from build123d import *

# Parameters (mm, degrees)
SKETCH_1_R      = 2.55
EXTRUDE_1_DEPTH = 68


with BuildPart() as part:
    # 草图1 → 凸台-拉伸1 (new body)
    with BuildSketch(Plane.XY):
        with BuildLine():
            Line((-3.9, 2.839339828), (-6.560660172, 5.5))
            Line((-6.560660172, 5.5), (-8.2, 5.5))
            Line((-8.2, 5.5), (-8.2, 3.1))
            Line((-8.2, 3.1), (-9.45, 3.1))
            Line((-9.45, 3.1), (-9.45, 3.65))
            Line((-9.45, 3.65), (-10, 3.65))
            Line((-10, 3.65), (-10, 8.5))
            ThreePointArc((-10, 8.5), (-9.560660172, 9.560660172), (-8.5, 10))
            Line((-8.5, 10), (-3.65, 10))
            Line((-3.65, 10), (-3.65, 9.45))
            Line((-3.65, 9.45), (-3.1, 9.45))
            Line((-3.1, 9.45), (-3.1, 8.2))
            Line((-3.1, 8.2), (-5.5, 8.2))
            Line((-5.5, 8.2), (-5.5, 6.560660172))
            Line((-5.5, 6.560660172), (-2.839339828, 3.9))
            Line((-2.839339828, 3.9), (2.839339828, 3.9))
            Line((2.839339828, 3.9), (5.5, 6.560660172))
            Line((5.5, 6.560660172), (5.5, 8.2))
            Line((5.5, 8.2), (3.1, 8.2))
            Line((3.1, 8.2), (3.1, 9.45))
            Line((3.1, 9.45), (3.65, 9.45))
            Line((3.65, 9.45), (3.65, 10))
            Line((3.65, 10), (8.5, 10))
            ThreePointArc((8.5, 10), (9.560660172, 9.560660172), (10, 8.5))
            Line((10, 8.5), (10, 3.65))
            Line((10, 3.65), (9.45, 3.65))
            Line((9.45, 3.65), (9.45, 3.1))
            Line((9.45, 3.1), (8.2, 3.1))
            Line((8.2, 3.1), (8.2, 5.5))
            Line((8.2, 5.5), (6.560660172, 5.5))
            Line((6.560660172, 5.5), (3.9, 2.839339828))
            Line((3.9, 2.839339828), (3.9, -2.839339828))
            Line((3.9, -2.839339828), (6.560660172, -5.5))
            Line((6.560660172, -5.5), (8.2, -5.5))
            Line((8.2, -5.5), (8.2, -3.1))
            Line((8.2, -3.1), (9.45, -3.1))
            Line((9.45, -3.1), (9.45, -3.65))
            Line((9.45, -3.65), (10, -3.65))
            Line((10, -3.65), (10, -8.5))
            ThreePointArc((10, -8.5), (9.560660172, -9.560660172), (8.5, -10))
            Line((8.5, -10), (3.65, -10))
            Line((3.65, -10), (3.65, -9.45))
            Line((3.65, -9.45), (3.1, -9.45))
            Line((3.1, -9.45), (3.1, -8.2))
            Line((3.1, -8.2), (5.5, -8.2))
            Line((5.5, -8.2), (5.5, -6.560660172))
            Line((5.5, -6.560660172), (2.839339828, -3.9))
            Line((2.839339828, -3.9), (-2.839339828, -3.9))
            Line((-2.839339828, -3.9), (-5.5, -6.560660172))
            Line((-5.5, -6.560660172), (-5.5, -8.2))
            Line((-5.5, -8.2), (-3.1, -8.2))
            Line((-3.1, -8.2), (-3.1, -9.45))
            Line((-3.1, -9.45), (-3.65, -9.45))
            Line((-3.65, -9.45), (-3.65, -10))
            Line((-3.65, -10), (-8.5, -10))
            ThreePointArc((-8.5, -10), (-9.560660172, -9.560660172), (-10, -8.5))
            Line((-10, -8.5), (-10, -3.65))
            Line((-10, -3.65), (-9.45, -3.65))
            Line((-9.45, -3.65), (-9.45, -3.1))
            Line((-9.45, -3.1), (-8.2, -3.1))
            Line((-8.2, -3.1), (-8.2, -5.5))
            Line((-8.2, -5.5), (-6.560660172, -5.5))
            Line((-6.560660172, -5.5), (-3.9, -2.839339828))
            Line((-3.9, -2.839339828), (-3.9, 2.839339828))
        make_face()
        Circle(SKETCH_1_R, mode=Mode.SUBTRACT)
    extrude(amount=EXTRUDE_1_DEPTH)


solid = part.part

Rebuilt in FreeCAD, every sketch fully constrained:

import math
import FreeCAD as App
import Part
import Sketcher

V = App.Vector

doc = App.newDocument("Part")
params = doc.addObject("Spreadsheet::Sheet", "Params")
for row, (alias, value) in enumerate([
    ("sketch1_diameter", "5.1 mm"),
    ("sketch1_radius", "1.5 mm"),
    ("sketch1_width", "2.4 mm"),
    ("sketch1_width2", "1.25 mm"),
    ("sketch1_width3", "0.55 mm"),
    ("pad1_length", "68 mm"),
], start=1):
    params.set(f"A{row}", alias)
    params.set(f"B{row}", "=" + value)
    params.setAlias(f"B{row}", alias)

body = doc.addObject("PartDesign::Body", "Body")

sketch1 = body.newObject("Sketcher::SketchObject", "Sketch")
sketch1.AttachmentSupport = (doc.getObject("XY_Plane"), [""])
sketch1.MapMode = "FlatFace"
sketch1.addGeometry([
    Part.LineSegment(V(-6.56066, 5.5, 0), V(-3.9, 2.83934, 0)),
    Part.LineSegment(V(-3.9, 2.83934, 0), V(-3.9, -2.83934, 0)),
    Part.LineSegment(V(-3.9, -2.83934, 0), V(-6.56066, -5.5, 0)),
    Part.LineSegment(V(-6.56066, -5.5, 0), V(-8.2, -5.5, 0)),
    Part.LineSegment(V(-8.2, -5.5, 0), V(-8.2, -3.1, 0)),
    Part.LineSegment(V(-8.2, -3.1, 0), V(-9.45, -3.1, 0)),
    Part.LineSegment(V(-9.45, -3.1, 0), V(-9.45, -3.65, 0)),
    Part.LineSegment(V(-9.45, -3.65, 0), V(-10, -3.65, 0)),
    Part.LineSegment(V(-10, -3.65, 0), V(-10, -8.5, 0)),
    Part.ArcOfCircle(Part.Circle(V(-8.5, -8.5, 0), V(0, 0, 1), 1.5), math.radians(180), math.radians(270)),
    Part.LineSegment(V(-8.5, -10, 0), V(-3.65, -10, 0)),
    Part.LineSegment(V(-3.65, -10, 0), V(-3.65, -9.45, 0)),
    Part.LineSegment(V(-3.65, -9.45, 0), V(-3.1, -9.45, 0)),
    Part.LineSegment(V(-3.1, -9.45, 0), V(-3.1, -8.2, 0)),
    Part.LineSegment(V(-3.1, -8.2, 0), V(-5.5, -8.2, 0)),
    Part.LineSegment(V(-5.5, -8.2, 0), V(-5.5, -6.56066, 0)),
    Part.LineSegment(V(-5.5, -6.56066, 0), V(-2.83934, -3.9, 0)),
    Part.LineSegment(V(-2.83934, -3.9, 0), V(2.83934, -3.9, 0)),
    Part.LineSegment(V(2.83934, -3.9, 0), V(5.5, -6.56066, 0)),
    Part.LineSegment(V(5.5, -6.56066, 0), V(5.5, -8.2, 0)),
    Part.LineSegment(V(5.5, -8.2, 0), V(3.1, -8.2, 0)),
    Part.LineSegment(V(3.1, -8.2, 0), V(3.1, -9.45, 0)),
    Part.LineSegment(V(3.1, -9.45, 0), V(3.65, -9.45, 0)),
    Part.LineSegment(V(3.65, -9.45, 0), V(3.65, -10, 0)),
    Part.LineSegment(V(3.65, -10, 0), V(8.5, -10, 0)),
    Part.ArcOfCircle(Part.Circle(V(8.5, -8.5, 0), V(0, 0, 1), 1.5), math.radians(-90), math.radians(0)),
    Part.LineSegment(V(10, -8.5, 0), V(10, -3.65, 0)),
    Part.LineSegment(V(10, -3.65, 0), V(9.45, -3.65, 0)),
    Part.LineSegment(V(9.45, -3.65, 0), V(9.45, -3.1, 0)),
    Part.LineSegment(V(9.45, -3.1, 0), V(8.2, -3.1, 0)),
    Part.LineSegment(V(8.2, -3.1, 0), V(8.2, -5.5, 0)),
    Part.LineSegment(V(8.2, -5.5, 0), V(6.56066, -5.5, 0)),
    Part.LineSegment(V(6.56066, -5.5, 0), V(3.9, -2.83934, 0)),
    Part.LineSegment(V(3.9, -2.83934, 0), V(3.9, 2.83934, 0)),
    Part.LineSegment(V(3.9, 2.83934, 0), V(6.56066, 5.5, 0)),
    Part.LineSegment(V(6.56066, 5.5, 0), V(8.2, 5.5, 0)),
    Part.LineSegment(V(8.2, 5.5, 0), V(8.2, 3.1, 0)),
    Part.LineSegment(V(8.2, 3.1, 0), V(9.45, 3.1, 0)),
    Part.LineSegment(V(9.45, 3.1, 0), V(9.45, 3.65, 0)),
    Part.LineSegment(V(9.45, 3.65, 0), V(10, 3.65, 0)),
    Part.LineSegment(V(10, 3.65, 0), V(10, 8.5, 0)),
    Part.ArcOfCircle(Part.Circle(V(8.5, 8.5, 0), V(0, 0, 1), 1.5), math.radians(0), math.radians(90)),
    Part.LineSegment(V(8.5, 10, 0), V(3.65, 10, 0)),
    Part.LineSegment(V(3.65, 10, 0), V(3.65, 9.45, 0)),
    Part.LineSegment(V(3.65, 9.45, 0), V(3.1, 9.45, 0)),
    Part.LineSegment(V(3.1, 9.45, 0), V(3.1, 8.2, 0)),
    Part.LineSegment(V(3.1, 8.2, 0), V(5.5, 8.2, 0)),
    Part.LineSegment(V(5.5, 8.2, 0), V(5.5, 6.56066, 0)),
    Part.LineSegment(V(5.5, 6.56066, 0), V(2.83934, 3.9, 0)),
    Part.LineSegment(V(2.83934, 3.9, 0), V(-2.83934, 3.9, 0)),
    Part.LineSegment(V(-2.83934, 3.9, 0), V(-5.5, 6.56066, 0)),
    Part.LineSegment(V(-5.5, 6.56066, 0), V(-5.5, 8.2, 0)),
    Part.LineSegment(V(-5.5, 8.2, 0), V(-3.1, 8.2, 0)),
    Part.LineSegment(V(-3.1, 8.2, 0), V(-3.1, 9.45, 0)),
    Part.LineSegment(V(-3.1, 9.45, 0), V(-3.65, 9.45, 0)),
    Part.LineSegment(V(-3.65, 9.45, 0), V(-3.65, 10, 0)),
    Part.LineSegment(V(-3.65, 10, 0), V(-8.5, 10, 0)),
    Part.ArcOfCircle(Part.Circle(V(-8.5, 8.5, 0), V(0, 0, 1), 1.5), math.radians(90), math.radians(180)),
    Part.LineSegment(V(-10, 8.5, 0), V(-10, 3.65, 0)),
    Part.LineSegment(V(-10, 3.65, 0), V(-9.45, 3.65, 0)),
    Part.LineSegment(V(-9.45, 3.65, 0), V(-9.45, 3.1, 0)),
    Part.LineSegment(V(-9.45, 3.1, 0), V(-8.2, 3.1, 0)),
    Part.LineSegment(V(-8.2, 3.1, 0), V(-8.2, 5.5, 0)),
    Part.LineSegment(V(-8.2, 5.5, 0), V(-6.56066, 5.5, 0)),
    Part.Circle(V(0, 0, 0), V(0, 0, 1), 2.55),
], False)
sketch1.addConstraint([
    Sketcher.Constraint("Coincident", 0, 2, 1, 1),
    Sketcher.Constraint("Coincident", 1, 2, 2, 1),
    Sketcher.Constraint("Coincident", 2, 2, 3, 1),
    Sketcher.Constraint("Coincident", 3, 2, 4, 1),
    Sketcher.Constraint("Coincident", 4, 2, 5, 1),
    Sketcher.Constraint("Coincident", 5, 2, 6, 1),
    Sketcher.Constraint("Coincident", 6, 2, 7, 1),
    Sketcher.Constraint("Coincident", 7, 2, 8, 1),
    Sketcher.Constraint("Tangent", 8, 2, 9, 1),
    Sketcher.Constraint("Tangent", 9, 2, 10, 1),
    Sketcher.Constraint("Coincident", 10, 2, 11, 1),
    Sketcher.Constraint("Coincident", 11, 2, 12, 1),
    Sketcher.Constraint("Coincident", 12, 2, 13, 1),
    Sketcher.Constraint("Coincident", 13, 2, 14, 1),
    Sketcher.Constraint("Coincident", 14, 2, 15, 1),
    Sketcher.Constraint("Coincident", 15, 2, 16, 1),
    Sketcher.Constraint("Coincident", 16, 2, 17, 1),
    Sketcher.Constraint("Coincident", 17, 2, 18, 1),
    Sketcher.Constraint("Coincident", 18, 2, 19, 1),
    Sketcher.Constraint("Coincident", 19, 2, 20, 1),
    Sketcher.Constraint("Coincident", 20, 2, 21, 1),
    Sketcher.Constraint("Coincident", 21, 2, 22, 1),
    Sketcher.Constraint("Coincident", 22, 2, 23, 1),
    Sketcher.Constraint("Coincident", 23, 2, 24, 1),
    Sketcher.Constraint("Tangent", 24, 2, 25, 1),
    Sketcher.Constraint("Tangent", 25, 2, 26, 1),
    Sketcher.Constraint("Coincident", 26, 2, 27, 1),
    Sketcher.Constraint("Coincident", 27, 2, 28, 1),
    Sketcher.Constraint("Coincident", 28, 2, 29, 1),
    Sketcher.Constraint("Coincident", 29, 2, 30, 1),
    Sketcher.Constraint("Coincident", 30, 2, 31, 1),
    Sketcher.Constraint("Coincident", 31, 2, 32, 1),
    Sketcher.Constraint("Coincident", 32, 2, 33, 1),
    Sketcher.Constraint("Coincident", 33, 2, 34, 1),
    Sketcher.Constraint("Coincident", 34, 2, 35, 1),
    Sketcher.Constraint("Coincident", 35, 2, 36, 1),
    Sketcher.Constraint("Coincident", 36, 2, 37, 1),
    Sketcher.Constraint("Coincident", 37, 2, 38, 1),
    Sketcher.Constraint("Coincident", 38, 2, 39, 1),
    Sketcher.Constraint("Coincident", 39, 2, 40, 1),
    Sketcher.Constraint("Tangent", 40, 2, 41, 1),
    Sketcher.Constraint("Tangent", 41, 2, 42, 1),
    Sketcher.Constraint("Coincident", 42, 2, 43, 1),
    Sketcher.Constraint("Coincident", 43, 2, 44, 1),
    Sketcher.Constraint("Coincident", 44, 2, 45, 1),
    Sketcher.Constraint("Coincident", 45, 2, 46, 1),
    Sketcher.Constraint("Coincident", 46, 2, 47, 1),
    Sketcher.Constraint("Coincident", 47, 2, 48, 1),
    Sketcher.Constraint("Coincident", 48, 2, 49, 1),
    Sketcher.Constraint("Coincident", 49, 2, 50, 1),
    Sketcher.Constraint("Coincident", 50, 2, 51, 1),
    Sketcher.Constraint("Coincident", 51, 2, 52, 1),
    Sketcher.Constraint("Coincident", 52, 2, 53, 1),
    Sketcher.Constraint("Coincident", 53, 2, 54, 1),
    Sketcher.Constraint("Coincident", 54, 2, 55, 1),
    Sketcher.Constraint("Coincident", 55, 2, 56, 1),
    Sketcher.Constraint("Tangent", 56, 2, 57, 1),
    Sketcher.Constraint("Tangent", 57, 2, 58, 1),
    Sketcher.Constraint("Coincident", 58, 2, 59, 1),
    Sketcher.Constraint("Coincident", 59, 2, 60, 1),
    Sketcher.Constraint("Coincident", 60, 2, 61, 1),
    Sketcher.Constraint("Coincident", 61, 2, 62, 1),
    Sketcher.Constraint("Coincident", 62, 2, 63, 1),
    Sketcher.Constraint("Coincident", 63, 2, 0, 1),
    Sketcher.Constraint("Vertical", 1),
    Sketcher.Constraint("Horizontal", 3),
    Sketcher.Constraint("Vertical", 4),
    Sketcher.Constraint("Horizontal", 5),
    Sketcher.Constraint("Vertical", 6),
    Sketcher.Constraint("Horizontal", 7),
    Sketcher.Constraint("Vertical", 8),
    Sketcher.Constraint("Horizontal", 10),
    Sketcher.Constraint("Vertical", 11),
    Sketcher.Constraint("Horizontal", 12),
    Sketcher.Constraint("Vertical", 13),
    Sketcher.Constraint("Horizontal", 14),
    Sketcher.Constraint("Vertical", 15),
    Sketcher.Constraint("Horizontal", 17),
    Sketcher.Constraint("Vertical", 19),
    Sketcher.Constraint("Horizontal", 20),
    Sketcher.Constraint("Vertical", 21),
    Sketcher.Constraint("Horizontal", 22),
    Sketcher.Constraint("Vertical", 23),
    Sketcher.Constraint("Horizontal", 24),
    Sketcher.Constraint("Vertical", 26),
    Sketcher.Constraint("Horizontal", 27),
    Sketcher.Constraint("Vertical", 28),
    Sketcher.Constraint("Horizontal", 29),
    Sketcher.Constraint("Vertical", 30),
    Sketcher.Constraint("Horizontal", 31),
    Sketcher.Constraint("Vertical", 33),
    Sketcher.Constraint("Horizontal", 35),
    Sketcher.Constraint("Vertical", 36),
    Sketcher.Constraint("Horizontal", 37),
    Sketcher.Constraint("Vertical", 38),
    Sketcher.Constraint("Horizontal", 39),
    Sketcher.Constraint("Vertical", 40),
    Sketcher.Constraint("Horizontal", 42),
    Sketcher.Constraint("Vertical", 43),
    Sketcher.Constraint("Horizontal", 44),
    Sketcher.Constraint("Vertical", 45),
    Sketcher.Constraint("Horizontal", 46),
    Sketcher.Constraint("Vertical", 47),
    Sketcher.Constraint("Horizontal", 49),
    Sketcher.Constraint("Vertical", 51),
    Sketcher.Constraint("Horizontal", 52),
    Sketcher.Constraint("Vertical", 53),
    Sketcher.Constraint("Horizontal", 54),
    Sketcher.Constraint("Vertical", 55),
    Sketcher.Constraint("Horizontal", 56),
    Sketcher.Constraint("Vertical", 58),
    Sketcher.Constraint("Horizontal", 59),
    Sketcher.Constraint("Vertical", 60),
    Sketcher.Constraint("Horizontal", 61),
    Sketcher.Constraint("Vertical", 62),
    Sketcher.Constraint("Horizontal", 63),
    Sketcher.Constraint("Coincident", 64, 3, -1, 1),
    Sketcher.Constraint("Equal", 9, 25),
    Sketcher.Constraint("Equal", 25, 41),
    Sketcher.Constraint("Equal", 41, 57),
    Sketcher.Constraint("Symmetric", 9, 3, 41, 3, -1, 1),
    Sketcher.Constraint("Symmetric", 25, 3, 57, 3, -1, 1),
    Sketcher.Constraint("Symmetric", 0, 2, 32, 2, -1, 1),
    Sketcher.Constraint("Symmetric", 2, 2, 34, 2, -1, 1),
    Sketcher.Constraint("Symmetric", 4, 2, 36, 2, -1, 1),
    Sketcher.Constraint("Symmetric", 6, 2, 38, 2, -1, 1),
    Sketcher.Constraint("Symmetric", 11, 2, 43, 2, -1, 1),
    Sketcher.Constraint("Symmetric", 13, 2, 45, 2, -1, 1),
    Sketcher.Constraint("Symmetric", 15, 2, 47, 2, -1, 1),
    Sketcher.Constraint("Symmetric", 16, 2, 48, 2, -1, 1),
    Sketcher.Constraint("Symmetric", 18, 2, 50, 2, -1, 1),
    Sketcher.Constraint("Symmetric", 20, 2, 52, 2, -1, 1),
    Sketcher.Constraint("Symmetric", 22, 2, 54, 2, -1, 1),
    Sketcher.Constraint("Symmetric", 27, 2, 59, 2, -1, 1),
    Sketcher.Constraint("Symmetric", 29, 2, 61, 2, -1, 1),
    Sketcher.Constraint("Symmetric", 31, 2, 63, 2, -1, 1),
    Sketcher.Constraint("Symmetric", 9, 3, 25, 3, -2),
    Sketcher.Constraint("Symmetric", 15, 2, 18, 2, -2),
    Sketcher.Constraint("Symmetric", 13, 2, 20, 2, -2),
    Sketcher.Constraint("Symmetric", 11, 2, 22, 2, -2),
    Sketcher.Constraint("Symmetric", 6, 2, 27, 2, -2),
    Sketcher.Constraint("Symmetric", 4, 2, 29, 2, -2),
    Sketcher.Constraint("Symmetric", 2, 2, 31, 2, -2),
    Sketcher.Constraint("Perpendicular", 0, 2),
    Sketcher.Constraint("Parallel", 2, 16),
    Sketcher.Constraint("Perpendicular", 16, 18),
    Sketcher.Constraint("Perpendicular", 32, 34),
    Sketcher.Constraint("Perpendicular", 48, 50),
    Sketcher.Constraint("Horizontal", 1, 2, 32, 2),
    Sketcher.Constraint("Equal", 7, 12),
    Sketcher.Constraint("Equal", 49, 1),
    Sketcher.Constraint("Equal", 52, 4),
    Sketcher.Constraint("Equal", 59, 6),
    Sketcher.Constraint("Equal", 56, 8),
    Sketcher.Constraint("Equal", 6, 11),
    Sketcher.Constraint("Equal", 61, 13),
    Sketcher.Constraint("Equal", 63, 15),
    Sketcher.Constraint("Equal", 2, 16),
    Sketcher.Constraint("Diameter", 64, 5.1),
    Sketcher.Constraint("Radius", 9, 1.5),
    Sketcher.Constraint("DistanceX", 14, 2, 14, 1, 2.4),
    Sketcher.Constraint("DistanceX", 7, 2, -1, 1, 10.0),
    Sketcher.Constraint("DistanceX", 5, 2, 5, 1, 1.25),
    Sketcher.Constraint("DistanceX", 7, 2, 7, 1, 0.55),
    Sketcher.Constraint("DistanceX", 10, 1, 10, 2, 4.85),
    Sketcher.Constraint("DistanceX", 0, 2, -1, 1, 3.9),
    Sketcher.Constraint("DistanceX", 3, 2, 3, 1, 1.63934),
])
sketch1.setExpression("Constraints[158]", "Params.sketch1_diameter")
sketch1.setExpression("Constraints[159]", "Params.sketch1_radius")
sketch1.setExpression("Constraints[160]", "Params.sketch1_width")
sketch1.setExpression("Constraints[162]", "Params.sketch1_width2")
sketch1.setExpression("Constraints[163]", "Params.sketch1_width3")
pad1 = body.newObject("PartDesign::Pad", "Pad")
pad1.Profile = sketch1
pad1.setExpression("Length", "Params.pad1_length")

doc.recompute()
